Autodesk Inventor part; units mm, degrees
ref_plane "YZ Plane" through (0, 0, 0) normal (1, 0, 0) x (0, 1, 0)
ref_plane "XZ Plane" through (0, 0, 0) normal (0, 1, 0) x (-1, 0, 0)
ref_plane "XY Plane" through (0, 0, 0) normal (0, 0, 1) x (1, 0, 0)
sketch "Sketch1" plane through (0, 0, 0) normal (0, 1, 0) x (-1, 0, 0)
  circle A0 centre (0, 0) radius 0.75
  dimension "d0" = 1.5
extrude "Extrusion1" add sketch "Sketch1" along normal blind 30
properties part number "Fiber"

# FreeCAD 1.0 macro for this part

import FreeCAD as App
import Part
import Sketcher
from FreeCAD import Vector
Q = App.Units.Quantity

doc = App.newDocument("Part")
body = doc.addObject("PartDesign::Body", "Body")

sketch1 = body.newObject("Sketcher::SketchObject", "Sketch")
sketch1.AttachmentSupport = (doc.getObject("XZ_Plane"), [""])
sketch1.MapMode = "FlatFace"
sketch1.addGeometry(Part.Circle(Vector(0, 0, 0), Vector(0, 0, 1), 0.8), False)
sketch1.addConstraint(Sketcher.Constraint("Coincident", 0, 3, -1, 1))
sketch1.addConstraint(Sketcher.Constraint("Diameter", 0, Q("1.5 mm")))
pad1 = body.newObject("PartDesign::Pad", "Pad")
pad1.Profile = sketch1
pad1.Length = 30
pad1.Reversed = True

doc.recompute()
